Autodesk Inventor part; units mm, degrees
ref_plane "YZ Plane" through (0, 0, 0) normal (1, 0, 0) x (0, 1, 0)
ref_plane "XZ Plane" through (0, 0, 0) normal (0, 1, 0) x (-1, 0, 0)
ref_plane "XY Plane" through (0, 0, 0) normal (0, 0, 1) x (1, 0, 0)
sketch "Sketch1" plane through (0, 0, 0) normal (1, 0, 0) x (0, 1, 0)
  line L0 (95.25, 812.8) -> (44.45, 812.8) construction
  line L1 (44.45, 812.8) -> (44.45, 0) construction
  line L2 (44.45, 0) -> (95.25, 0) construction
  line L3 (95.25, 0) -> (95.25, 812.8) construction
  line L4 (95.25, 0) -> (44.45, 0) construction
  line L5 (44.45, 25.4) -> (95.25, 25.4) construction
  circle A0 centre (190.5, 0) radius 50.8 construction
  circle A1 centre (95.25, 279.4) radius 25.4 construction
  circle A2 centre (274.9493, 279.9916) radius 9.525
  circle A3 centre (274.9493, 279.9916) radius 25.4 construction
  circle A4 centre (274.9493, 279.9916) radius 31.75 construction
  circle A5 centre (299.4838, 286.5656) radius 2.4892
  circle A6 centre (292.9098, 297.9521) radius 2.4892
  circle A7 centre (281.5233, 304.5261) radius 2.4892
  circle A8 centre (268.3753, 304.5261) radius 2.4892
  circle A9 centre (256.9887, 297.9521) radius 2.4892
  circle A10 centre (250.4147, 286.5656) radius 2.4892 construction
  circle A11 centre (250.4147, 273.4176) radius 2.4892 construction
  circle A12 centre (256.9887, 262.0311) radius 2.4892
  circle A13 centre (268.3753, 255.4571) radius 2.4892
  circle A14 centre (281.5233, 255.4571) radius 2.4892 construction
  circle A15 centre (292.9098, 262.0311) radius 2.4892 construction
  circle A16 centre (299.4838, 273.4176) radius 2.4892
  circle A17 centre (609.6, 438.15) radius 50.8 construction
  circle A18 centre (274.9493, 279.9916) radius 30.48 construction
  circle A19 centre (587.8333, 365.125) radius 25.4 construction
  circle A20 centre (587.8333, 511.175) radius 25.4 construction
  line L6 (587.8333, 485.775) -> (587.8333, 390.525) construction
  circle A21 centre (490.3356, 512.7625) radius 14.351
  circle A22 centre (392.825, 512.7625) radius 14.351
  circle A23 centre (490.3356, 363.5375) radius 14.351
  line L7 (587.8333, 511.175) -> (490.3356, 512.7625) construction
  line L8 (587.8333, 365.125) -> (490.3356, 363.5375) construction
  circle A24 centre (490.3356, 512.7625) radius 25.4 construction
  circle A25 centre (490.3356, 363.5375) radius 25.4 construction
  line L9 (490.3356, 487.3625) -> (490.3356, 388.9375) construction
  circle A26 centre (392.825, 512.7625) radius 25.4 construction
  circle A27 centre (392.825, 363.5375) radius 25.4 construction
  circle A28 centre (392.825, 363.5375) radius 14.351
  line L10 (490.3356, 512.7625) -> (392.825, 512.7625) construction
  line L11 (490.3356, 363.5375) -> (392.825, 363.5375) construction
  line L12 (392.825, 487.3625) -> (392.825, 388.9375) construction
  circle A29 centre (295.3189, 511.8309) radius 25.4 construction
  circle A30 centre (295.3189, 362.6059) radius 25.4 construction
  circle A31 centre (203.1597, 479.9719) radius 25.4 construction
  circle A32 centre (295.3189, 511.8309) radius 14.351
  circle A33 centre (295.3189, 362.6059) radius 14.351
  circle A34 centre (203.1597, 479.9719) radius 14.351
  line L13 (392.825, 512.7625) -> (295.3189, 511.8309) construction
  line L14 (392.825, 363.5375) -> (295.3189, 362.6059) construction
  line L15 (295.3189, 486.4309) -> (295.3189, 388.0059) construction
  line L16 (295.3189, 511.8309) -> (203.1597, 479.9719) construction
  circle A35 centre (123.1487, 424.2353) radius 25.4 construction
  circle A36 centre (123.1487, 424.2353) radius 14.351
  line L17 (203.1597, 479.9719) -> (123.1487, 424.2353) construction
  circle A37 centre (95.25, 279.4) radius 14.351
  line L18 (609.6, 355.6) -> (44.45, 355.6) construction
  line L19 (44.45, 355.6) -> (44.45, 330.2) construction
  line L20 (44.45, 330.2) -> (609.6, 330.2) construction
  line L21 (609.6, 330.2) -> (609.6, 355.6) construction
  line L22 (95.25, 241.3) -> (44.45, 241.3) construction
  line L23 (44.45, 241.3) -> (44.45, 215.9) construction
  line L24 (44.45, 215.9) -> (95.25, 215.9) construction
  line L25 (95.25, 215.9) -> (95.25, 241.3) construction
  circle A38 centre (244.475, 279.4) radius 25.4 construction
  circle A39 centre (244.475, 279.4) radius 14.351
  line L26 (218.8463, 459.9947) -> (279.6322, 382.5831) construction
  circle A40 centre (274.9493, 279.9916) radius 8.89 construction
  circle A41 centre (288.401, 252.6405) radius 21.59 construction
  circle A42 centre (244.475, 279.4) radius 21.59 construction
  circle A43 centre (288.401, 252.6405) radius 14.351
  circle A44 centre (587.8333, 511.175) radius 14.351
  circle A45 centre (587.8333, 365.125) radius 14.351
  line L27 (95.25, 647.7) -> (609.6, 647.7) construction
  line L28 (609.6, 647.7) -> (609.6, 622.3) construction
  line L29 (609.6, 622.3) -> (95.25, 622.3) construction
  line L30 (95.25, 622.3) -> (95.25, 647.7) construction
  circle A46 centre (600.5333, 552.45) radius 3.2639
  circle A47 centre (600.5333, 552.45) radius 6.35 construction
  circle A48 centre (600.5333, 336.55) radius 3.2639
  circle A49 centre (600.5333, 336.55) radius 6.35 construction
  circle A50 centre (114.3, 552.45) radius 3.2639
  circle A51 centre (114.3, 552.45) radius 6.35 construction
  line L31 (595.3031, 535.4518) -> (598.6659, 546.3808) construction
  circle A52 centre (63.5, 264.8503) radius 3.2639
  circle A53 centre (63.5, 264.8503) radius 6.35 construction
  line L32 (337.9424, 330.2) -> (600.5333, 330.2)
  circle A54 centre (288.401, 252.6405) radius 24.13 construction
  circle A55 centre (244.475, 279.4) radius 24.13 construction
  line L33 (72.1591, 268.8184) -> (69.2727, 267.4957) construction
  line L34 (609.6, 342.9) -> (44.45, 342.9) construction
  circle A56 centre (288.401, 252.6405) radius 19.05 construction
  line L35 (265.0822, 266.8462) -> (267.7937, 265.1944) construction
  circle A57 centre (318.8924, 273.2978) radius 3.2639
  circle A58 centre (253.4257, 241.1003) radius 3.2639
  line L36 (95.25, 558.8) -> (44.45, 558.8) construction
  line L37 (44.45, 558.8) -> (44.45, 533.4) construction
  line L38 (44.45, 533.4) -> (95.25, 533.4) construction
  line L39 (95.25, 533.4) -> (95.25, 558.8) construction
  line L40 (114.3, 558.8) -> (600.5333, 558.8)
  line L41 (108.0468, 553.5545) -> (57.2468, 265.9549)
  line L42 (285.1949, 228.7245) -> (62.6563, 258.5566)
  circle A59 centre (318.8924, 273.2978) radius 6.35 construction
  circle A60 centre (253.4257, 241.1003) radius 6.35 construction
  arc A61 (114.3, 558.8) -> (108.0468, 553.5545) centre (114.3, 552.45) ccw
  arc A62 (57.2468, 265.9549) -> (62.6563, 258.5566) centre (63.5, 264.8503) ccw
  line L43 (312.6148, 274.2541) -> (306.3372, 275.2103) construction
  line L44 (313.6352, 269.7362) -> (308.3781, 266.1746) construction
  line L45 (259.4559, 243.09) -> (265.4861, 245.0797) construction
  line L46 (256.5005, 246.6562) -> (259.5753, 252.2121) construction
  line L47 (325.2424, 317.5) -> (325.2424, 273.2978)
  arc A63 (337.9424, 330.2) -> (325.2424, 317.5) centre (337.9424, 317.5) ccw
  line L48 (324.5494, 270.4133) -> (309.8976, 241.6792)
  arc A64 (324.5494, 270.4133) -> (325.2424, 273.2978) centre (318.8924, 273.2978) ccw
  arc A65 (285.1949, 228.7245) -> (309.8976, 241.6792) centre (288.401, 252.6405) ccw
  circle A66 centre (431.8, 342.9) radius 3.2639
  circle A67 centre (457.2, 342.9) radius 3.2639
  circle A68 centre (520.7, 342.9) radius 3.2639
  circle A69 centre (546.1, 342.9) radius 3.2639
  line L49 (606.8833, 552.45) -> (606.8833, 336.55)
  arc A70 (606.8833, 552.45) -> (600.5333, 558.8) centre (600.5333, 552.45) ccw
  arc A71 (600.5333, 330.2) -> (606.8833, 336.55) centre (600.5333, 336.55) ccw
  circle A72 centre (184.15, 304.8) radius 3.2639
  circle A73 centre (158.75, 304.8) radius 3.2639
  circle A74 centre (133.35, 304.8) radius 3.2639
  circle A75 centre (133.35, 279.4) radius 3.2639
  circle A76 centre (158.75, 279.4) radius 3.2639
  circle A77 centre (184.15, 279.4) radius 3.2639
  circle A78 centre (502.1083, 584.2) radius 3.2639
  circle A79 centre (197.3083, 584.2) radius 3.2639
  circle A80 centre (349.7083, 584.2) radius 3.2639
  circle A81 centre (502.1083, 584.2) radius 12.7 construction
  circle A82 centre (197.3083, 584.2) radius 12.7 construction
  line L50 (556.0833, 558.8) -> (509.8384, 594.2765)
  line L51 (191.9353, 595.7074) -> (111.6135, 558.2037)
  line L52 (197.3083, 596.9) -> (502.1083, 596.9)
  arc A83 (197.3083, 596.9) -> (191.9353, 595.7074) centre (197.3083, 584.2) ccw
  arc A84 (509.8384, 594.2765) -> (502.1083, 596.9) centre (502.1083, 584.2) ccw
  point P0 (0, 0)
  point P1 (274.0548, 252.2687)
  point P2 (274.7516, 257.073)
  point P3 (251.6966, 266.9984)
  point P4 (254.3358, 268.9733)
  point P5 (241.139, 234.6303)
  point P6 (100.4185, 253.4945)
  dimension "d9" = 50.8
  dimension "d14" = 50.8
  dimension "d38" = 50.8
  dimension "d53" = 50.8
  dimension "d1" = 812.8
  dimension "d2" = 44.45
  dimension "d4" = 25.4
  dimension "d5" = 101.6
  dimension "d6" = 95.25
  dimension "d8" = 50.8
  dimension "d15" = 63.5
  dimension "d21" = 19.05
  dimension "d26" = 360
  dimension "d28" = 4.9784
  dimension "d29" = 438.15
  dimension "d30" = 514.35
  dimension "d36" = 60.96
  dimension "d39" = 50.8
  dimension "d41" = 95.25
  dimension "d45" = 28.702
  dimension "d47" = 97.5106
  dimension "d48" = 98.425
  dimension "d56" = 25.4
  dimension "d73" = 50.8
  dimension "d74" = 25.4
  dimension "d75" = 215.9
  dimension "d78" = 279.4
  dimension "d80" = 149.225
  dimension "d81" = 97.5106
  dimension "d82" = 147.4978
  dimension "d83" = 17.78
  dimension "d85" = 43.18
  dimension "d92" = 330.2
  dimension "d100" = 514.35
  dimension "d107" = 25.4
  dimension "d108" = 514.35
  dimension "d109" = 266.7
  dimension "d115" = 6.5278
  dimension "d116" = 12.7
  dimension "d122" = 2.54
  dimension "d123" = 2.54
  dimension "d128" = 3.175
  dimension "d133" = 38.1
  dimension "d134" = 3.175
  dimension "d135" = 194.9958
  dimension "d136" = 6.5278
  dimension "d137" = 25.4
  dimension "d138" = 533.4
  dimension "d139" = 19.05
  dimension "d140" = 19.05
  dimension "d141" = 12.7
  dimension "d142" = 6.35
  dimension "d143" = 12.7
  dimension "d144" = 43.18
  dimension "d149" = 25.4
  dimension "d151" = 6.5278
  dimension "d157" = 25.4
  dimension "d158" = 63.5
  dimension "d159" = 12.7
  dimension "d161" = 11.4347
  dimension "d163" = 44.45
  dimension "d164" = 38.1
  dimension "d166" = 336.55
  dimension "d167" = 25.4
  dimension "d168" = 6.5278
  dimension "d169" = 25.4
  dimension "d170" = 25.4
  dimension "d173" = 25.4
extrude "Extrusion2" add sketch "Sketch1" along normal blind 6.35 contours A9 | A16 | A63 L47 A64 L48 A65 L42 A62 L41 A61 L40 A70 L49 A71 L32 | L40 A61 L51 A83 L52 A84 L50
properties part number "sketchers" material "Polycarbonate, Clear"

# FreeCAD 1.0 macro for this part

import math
import FreeCAD as App
import Part
import Sketcher
from FreeCAD import Vector
Q = App.Units.Quantity

doc = App.newDocument("Part")
params = doc.addObject("Spreadsheet::Sheet", "Params")
for row, (alias, value) in enumerate([
    ("sketch1_radius", "0.5 in"),
    ("sketch1_diameter", "1.13 in"),
    ("sketch1_diameter2", "0.75 in"),
    ("sketch1_radius2", "0.25 in"),
    ("sketch1_diameter3", "0.257 in"),
    ("pad1_length", "0.25 in"),
], start=1):
    params.set(f"A{row}", alias)
    params.set(f"B{row}", "=" + value)
    params.setAlias(f"B{row}", alias)

body = doc.addObject("PartDesign::Body", "Body")

sketch1 = body.newObject("Sketcher::SketchObject", "Sketch")
sketch1.AttachmentSupport = (doc.getObject("YZ_Plane"), [""])
sketch1.MapMode = "FlatFace"
sketch1.addGeometry([
    Part.ArcOfCircle(Part.Circle(Vector(337.9, 317.5, 0), Vector(0, 0, 1), 12.7), math.radians(90), math.radians(180)),
    Part.LineSegment(Vector(337.9, 330.2, 0), Vector(600.5, 330.2, 0)),
    Part.ArcOfCircle(Part.Circle(Vector(600.5, 336.6, 0), Vector(0, 0, 1), 6.3), math.radians(-90), math.radians(0)),
    Part.LineSegment(Vector(606.9, 336.6, 0), Vector(606.9, 552.5, 0)),
    Part.ArcOfCircle(Part.Circle(Vector(600.5, 552.5, 0), Vector(0, 0, 1), 6.3), math.radians(0), math.radians(90)),
    Part.LineSegment(Vector(600.5, 558.8, 0), Vector(556.1, 558.8, 0)),
    Part.LineSegment(Vector(556.1, 558.8, 0), Vector(509.8, 594.3, 0)),
    Part.ArcOfCircle(Part.Circle(Vector(502.1, 584.2, 0), Vector(0, 0, 1), 12.7), math.radians(53), math.radians(90)),
    Part.LineSegment(Vector(502.1, 596.9, 0), Vector(197.3, 596.9, 0)),
    Part.ArcOfCircle(Part.Circle(Vector(197.3, 584.2, 0), Vector(0, 0, 1), 12.7), math.radians(90), math.radians(115)),
    Part.LineSegment(Vector(191.9, 595.7, 0), Vector(111.6, 558.2, 0)),
    Part.ArcOfCircle(Part.Circle(Vector(114.3, 552.5, 0), Vector(0, 0, 1), 6.3), math.radians(115), math.radians(170)),
    Part.LineSegment(Vector(108, 553.6, 0), Vector(57.2, 266, 0)),
    Part.ArcOfCircle(Part.Circle(Vector(63.5, 264.9, 0), Vector(0, 0, 1), 6.3), math.radians(170), math.radians(262)),
    Part.LineSegment(Vector(62.7, 258.6, 0), Vector(285.2, 228.7, 0)),
    Part.ArcOfCircle(Part.Circle(Vector(288.4, 252.6, 0), Vector(0, 0, 1), 24.1), math.radians(-98), math.radians(-27)),
    Part.LineSegment(Vector(309.9, 241.7, 0), Vector(324.5, 270.4, 0)),
    Part.ArcOfCircle(Part.Circle(Vector(318.9, 273.3, 0), Vector(0, 0, 1), 6.3), math.radians(-27), math.radians(0)),
    Part.LineSegment(Vector(325.2, 273.3, 0), Vector(325.2, 317.5, 0)),
    Part.Circle(Vector(63.5, 264.9, 0), Vector(0, 0, 1), 3.3),
    Part.Circle(Vector(95.2, 279.4, 0), Vector(0, 0, 1), 14.4),
    Part.Circle(Vector(133.3, 279.4, 0), Vector(0, 0, 1), 3.3),
    Part.Circle(Vector(158.8, 279.4, 0), Vector(0, 0, 1), 3.3),
    Part.Circle(Vector(184.2, 279.4, 0), Vector(0, 0, 1), 3.3),
    Part.Circle(Vector(133.3, 304.8, 0), Vector(0, 0, 1), 3.3),
    Part.Circle(Vector(158.8, 304.8, 0), Vector(0, 0, 1), 3.3),
    Part.Circle(Vector(184.2, 304.8, 0), Vector(0, 0, 1), 3.3),
    Part.Circle(Vector(253.4, 241.1, 0), Vector(0, 0, 1), 3.3),
    Part.Circle(Vector(257, 262, 0), Vector(0, 0, 1), 2.5),
    Part.Circle(Vector(268.4, 255.5, 0), Vector(0, 0, 1), 2.5),
    Part.Circle(Vector(288.4, 252.6, 0), Vector(0, 0, 1), 14.4),
    Part.Circle(Vector(318.9, 273.3, 0), Vector(0, 0, 1), 3.3),
    Part.Circle(Vector(244.5, 279.4, 0), Vector(0, 0, 1), 14.4),
    Part.Circle(Vector(600.5, 552.5, 0), Vector(0, 0, 1), 3.3),
    Part.Circle(Vector(274.9, 280, 0), Vector(0, 0, 1), 9.5),
    Part.Circle(Vector(299.5, 286.6, 0), Vector(0, 0, 1), 2.5),
    Part.Circle(Vector(268.4, 304.5, 0), Vector(0, 0, 1), 2.5),
    Part.Circle(Vector(292.9, 298, 0), Vector(0, 0, 1), 2.5),
    Part.Circle(Vector(281.5, 304.5, 0), Vector(0, 0, 1), 2.5),
    Part.Circle(Vector(295.3, 362.6, 0), Vector(0, 0, 1), 14.4),
    Part.Circle(Vector(392.8, 363.5, 0), Vector(0, 0, 1), 14.4),
    Part.Circle(Vector(431.8, 342.9, 0), Vector(0, 0, 1), 3.3),
    Part.Circle(Vector(457.2, 342.9, 0), Vector(0, 0, 1), 3.3),
    Part.Circle(Vector(520.7, 342.9, 0), Vector(0, 0, 1), 3.3),
    Part.Circle(Vector(490.3, 363.5, 0), Vector(0, 0, 1), 14.4),
    Part.Circle(Vector(546.1, 342.9, 0), Vector(0, 0, 1), 3.3),
    Part.Circle(Vector(600.5, 336.6, 0), Vector(0, 0, 1), 3.3),
    Part.Circle(Vector(587.8, 365.1, 0), Vector(0, 0, 1), 14.4),
    Part.Circle(Vector(123.1, 424.2, 0), Vector(0, 0, 1), 14.4),
    Part.Circle(Vector(203.2, 480, 0), Vector(0, 0, 1), 14.4),
    Part.Circle(Vector(114.3, 552.5, 0), Vector(0, 0, 1), 3.3),
    Part.Circle(Vector(295.3, 511.8, 0), Vector(0, 0, 1), 14.4),
    Part.Circle(Vector(392.8, 512.8, 0), Vector(0, 0, 1), 14.4),
    Part.Circle(Vector(490.3, 512.8, 0), Vector(0, 0, 1), 14.4),
    Part.Circle(Vector(587.8, 511.2, 0), Vector(0, 0, 1), 14.4),
    Part.Circle(Vector(349.7, 584.2, 0), Vector(0, 0, 1), 3.3),
    Part.Circle(Vector(502.1, 584.2, 0), Vector(0, 0, 1), 3.3),
    Part.Circle(Vector(197.3, 584.2, 0), Vector(0, 0, 1), 3.3),
], False)
sketch1.addConstraint([
    Sketcher.Constraint("Tangent", 0, 1, 1, 1),
    Sketcher.Constraint("Tangent", 1, 2, 2, 1),
    Sketcher.Constraint("Tangent", 2, 2, 3, 1),
    Sketcher.Constraint("Tangent", 3, 2, 4, 1),
    Sketcher.Constraint("Tangent", 4, 2, 5, 1),
    Sketcher.Constraint("Coincident", 5, 2, 6, 1),
    Sketcher.Constraint("Tangent", 6, 2, 7, 1),
    Sketcher.Constraint("Tangent", 7, 2, 8, 1),
    Sketcher.Constraint("Tangent", 8, 2, 9, 1),
    Sketcher.Constraint("Tangent", 9, 2, 10, 1),
    Sketcher.Constraint("Tangent", 10, 2, 11, 1),
    Sketcher.Constraint("Tangent", 11, 2, 12, 1),
    Sketcher.Constraint("Tangent", 12, 2, 13, 1),
    Sketcher.Constraint("Tangent", 13, 2, 14, 1),
    Sketcher.Constraint("Tangent", 14, 2, 15, 1),
    Sketcher.Constraint("Tangent", 15, 2, 16, 1),
    Sketcher.Constraint("Tangent", 16, 2, 17, 1),
    Sketcher.Constraint("Tangent", 17, 2, 18, 1),
    Sketcher.Constraint("Tangent", 18, 2, 0, 2),
    Sketcher.Constraint("Horizontal", 1),
    Sketcher.Constraint("Vertical", 3),
    Sketcher.Constraint("Horizontal", 5),
    Sketcher.Constraint("Horizontal", 8),
    Sketcher.Constraint("Vertical", 18),
    Sketcher.Constraint("Coincident", 19, 3, 13, 3),
    Sketcher.Constraint("Coincident", 30, 3, 15, 3),
    Sketcher.Constraint("Coincident", 31, 3, 17, 3),
    Sketcher.Constraint("Coincident", 33, 3, 4, 3),
    Sketcher.Constraint("Coincident", 46, 3, 2, 3),
    Sketcher.Constraint("Coincident", 50, 3, 11, 3),
    Sketcher.Constraint("Coincident", 56, 3, 7, 3),
    Sketcher.Constraint("Coincident", 57, 3, 9, 3),
    Sketcher.Constraint("Equal", 2, 4),
    Sketcher.Constraint("Equal", 0, 7),
    Sketcher.Constraint("Equal", 7, 9),
    Sketcher.Constraint("Equal", 4, 11),
    Sketcher.Constraint("Equal", 11, 13),
    Sketcher.Constraint("Equal", 13, 17),
    Sketcher.Constraint("Equal", 19, 21),
    Sketcher.Constraint("Equal", 21, 22),
    Sketcher.Constraint("Equal", 22, 23),
    Sketcher.Constraint("Equal", 23, 24),
    Sketcher.Constraint("Equal", 24, 25),
    Sketcher.Constraint("Equal", 25, 26),
    Sketcher.Constraint("Equal", 26, 27),
    Sketcher.Constraint("Equal", 28, 29),
    Sketcher.Constraint("Equal", 20, 30),
    Sketcher.Constraint("Equal", 27, 31),
    Sketcher.Constraint("Equal", 30, 32),
    Sketcher.Constraint("Equal", 31, 33),
    Sketcher.Constraint("Equal", 29, 35),
    Sketcher.Constraint("Equal", 35, 36),
    Sketcher.Constraint("Equal", 36, 37),
    Sketcher.Constraint("Equal", 37, 38),
    Sketcher.Constraint("Equal", 32, 39),
    Sketcher.Constraint("Equal", 39, 40),
    Sketcher.Constraint("Equal", 33, 41),
    Sketcher.Constraint("Equal", 41, 42),
    Sketcher.Constraint("Equal", 42, 43),
    Sketcher.Constraint("Equal", 40, 44),
    Sketcher.Constraint("Equal", 43, 45),
    Sketcher.Constraint("Equal", 45, 46),
    Sketcher.Constraint("Equal", 44, 47),
    Sketcher.Constraint("Equal", 47, 48),
    Sketcher.Constraint("Equal", 48, 49),
    Sketcher.Constraint("Equal", 46, 50),
    Sketcher.Constraint("Equal", 49, 51),
    Sketcher.Constraint("Equal", 51, 52),
    Sketcher.Constraint("Equal", 52, 53),
    Sketcher.Constraint("Equal", 53, 54),
    Sketcher.Constraint("Equal", 50, 55),
    Sketcher.Constraint("Equal", 55, 56),
    Sketcher.Constraint("Equal", 56, 57),
    Sketcher.Constraint("Horizontal", 4, 3, 11, 3),
    Sketcher.Constraint("Horizontal", 20, 3, 21, 3),
    Sketcher.Constraint("Horizontal", 21, 3, 22, 3),
    Sketcher.Constraint("Horizontal", 22, 3, 23, 3),
    Sketcher.Constraint("Horizontal", 24, 3, 25, 3),
    Sketcher.Constraint("Horizontal", 25, 3, 26, 3),
    Sketcher.Constraint("Horizontal", 23, 3, 32, 3),
    Sketcher.Constraint("Horizontal", 36, 3, 38, 3),
    Sketcher.Constraint("Horizontal", 41, 3, 42, 3),
    Sketcher.Constraint("Horizontal", 42, 3, 43, 3),
    Sketcher.Constraint("Horizontal", 40, 3, 44, 3),
    Sketcher.Constraint("Horizontal", 43, 3, 45, 3),
    Sketcher.Constraint("Horizontal", 52, 3, 53, 3),
    Sketcher.Constraint("Horizontal", 9, 3, 55, 3),
    Sketcher.Constraint("Vertical", 21, 3, 24, 3),
    Sketcher.Constraint("Vertical", 22, 3, 25, 3),
    Sketcher.Constraint("Vertical", 23, 3, 26, 3),
    Sketcher.Constraint("Vertical", 29, 3, 36, 3),
    Sketcher.Constraint("Vertical", 39, 3, 51, 3),
    Sketcher.Constraint("Vertical", 40, 3, 52, 3),
    Sketcher.Constraint("Vertical", 44, 3, 53, 3),
    Sketcher.Constraint("Vertical", 47, 3, 54, 3),
    Sketcher.Constraint("Radius", 0, Q("0.5 in")),
    Sketcher.Constraint("Diameter", 20, Q("1.13 in")),
    Sketcher.Constraint("Diameter", 34, Q("0.75 in")),
    Sketcher.Constraint("Radius", 2, Q("0.25 in")),
    Sketcher.Constraint("Diameter", 19, Q("0.257 in")),
    Sketcher.Constraint("Diameter", 28, Q("0.196 in")),
    Sketcher.Constraint("DistanceY", 3, 1, 3, 2, Q("8.5 in")),
    Sketcher.Constraint("DistanceY", -1, 1, 20, 3, Q("11 in")),
    Sketcher.Constraint("DistanceY", -1, 1, 0, 1, Q("13 in")),
    Sketcher.Constraint("DistanceX", 5, 2, 5, 1, Q("1.75 in")),
    Sketcher.Constraint("DistanceX", -1, 1, 13, 3, Q("2.5 in")),
    Sketcher.Constraint("DistanceX", 8, 2, 8, 1, Q("12 in")),
    Sketcher.Constraint("DistanceX", -1, 1, 20, 3, Q("3.75 in")),
    Sketcher.Constraint("Radius", 15, Q("0.95 in")),
    Sketcher.Constraint("DistanceY", -1, 1, 7, 3, Q("23 in")),
    Sketcher.Constraint("DistanceY", -1, 1, 24, 3, Q("12 in")),
    Sketcher.Constraint("DistanceX", -1, 1, 41, 3, Q("17 in")),
    Sketcher.Constraint("DistanceX", -1, 1, 42, 3, Q("18 in")),
    Sketcher.Constraint("DistanceX", -1, 1, 11, 3, Q("4.5 in")),
    Sketcher.Constraint("DistanceY", -1, 1, 41, 3, Q("13.5 in")),
    Sketcher.Constraint("DistanceX", -1, 1, 43, 3, Q("20.5 in")),
    Sketcher.Constraint("DistanceX", -1, 1, 45, 3, Q("21.5 in")),
    Sketcher.Constraint("Distance", 10, Q("3.49 in")),
    Sketcher.Constraint("DistanceX", -1, 1, 21, 3, Q("5.25 in")),
    Sketcher.Constraint("DistanceX", -1, 1, 22, 3, Q("6.25 in")),
    Sketcher.Constraint("DistanceX", -1, 1, 23, 3, Q("7.25 in")),
    Sketcher.Constraint("DistanceX", -1, 1, 32, 3, Q("9.625 in")),
    Sketcher.Constraint("DistanceY", -1, 1, 40, 3, Q("14.3125 in")),
    Sketcher.Constraint("DistanceY", -1, 1, 47, 3, Q("14.375 in")),
    Sketcher.Constraint("DistanceY", -1, 1, 52, 3, Q("20.1875 in")),
    Sketcher.Constraint("DistanceY", -1, 1, 54, 3, Q("20.125 in")),
    Sketcher.Constraint("Distance", 6, Q("2.2947 in")),
    Sketcher.Constraint("Distance", 12, Q("11.4981 in")),
    Sketcher.Constraint("DistanceX", 1, 1, 1, 2, Q("262.591 mm")),
    Sketcher.Constraint("DistanceY", 18, 1, 18, 2, Q("44.2022 mm")),
    Sketcher.Constraint("DistanceX", -1, 1, 27, 3, Q("9.9774 in")),
    Sketcher.Constraint("DistanceY", -1, 1, 34, 3, Q("11.0233 in")),
    Sketcher.Constraint("DistanceX", -1, 1, 35, 3, Q("11.7907 in")),
    Sketcher.Constraint("DistanceY", -1, 1, 35, 3, Q("11.2821 in")),
    Sketcher.Constraint("DistanceY", -1, 1, 37, 3, Q("11.7304 in")),
    Sketcher.Constraint("DistanceX", -1, 1, 38, 3, Q("11.0836 in")),
    Sketcher.Constraint("DistanceY", -1, 1, 14, 2, Q("9.0049 in")),
    Sketcher.Constraint("DistanceX", -1, 1, 15, 2, Q("12.2007 in")),
    Sketcher.Constraint("DistanceY", -1, 1, 27, 3, Q("241.1003 mm")),
    Sketcher.Constraint("DistanceX", -1, 1, 28, 3, Q("256.9887 mm")),
    Sketcher.Constraint("DistanceY", -1, 1, 28, 3, Q("262.031 mm")),
    Sketcher.Constraint("DistanceX", -1, 1, 29, 3, Q("268.3753 mm")),
    Sketcher.Constraint("DistanceY", -1, 1, 29, 3, Q("255.457 mm")),
    Sketcher.Constraint("DistanceX", -1, 1, 34, 3, Q("274.9493 mm")),
    Sketcher.Constraint("DistanceY", -1, 1, 36, 3, Q("304.526 mm")),
    Sketcher.Constraint("DistanceX", -1, 1, 37, 3, Q("292.9098 mm")),
    Sketcher.Constraint("DistanceX", -1, 1, 39, 3, Q("295.319 mm")),
    Sketcher.Constraint("DistanceY", -1, 1, 39, 3, Q("362.606 mm")),
    Sketcher.Constraint("DistanceX", -1, 1, 40, 3, Q("392.825 mm")),
    Sketcher.Constraint("DistanceX", -1, 1, 44, 3, Q("490.3356 mm")),
    Sketcher.Constraint("DistanceX", -1, 1, 47, 3, Q("587.8333 mm")),
    Sketcher.Constraint("DistanceX", -1, 1, 48, 3, Q("123.1487 mm")),
    Sketcher.Constraint("DistanceY", -1, 1, 48, 3, Q("424.2353 mm")),
    Sketcher.Constraint("DistanceX", -1, 1, 49, 3, Q("203.1597 mm")),
    Sketcher.Constraint("DistanceY", -1, 1, 49, 3, Q("479.972 mm")),
    Sketcher.Constraint("DistanceY", -1, 1, 51, 3, Q("511.831 mm")),
    Sketcher.Constraint("DistanceX", -1, 1, 55, 3, Q("349.7083 mm")),
])
sketch1.setExpression("Constraints[95]", "Params.sketch1_radius")
sketch1.setExpression("Constraints[96]", "Params.sketch1_diameter")
sketch1.setExpression("Constraints[97]", "Params.sketch1_diameter2")
sketch1.setExpression("Constraints[98]", "Params.sketch1_radius2")
sketch1.setExpression("Constraints[99]", "Params.sketch1_diameter3")
pad1 = body.newObject("PartDesign::Pad", "Pad")
pad1.Profile = sketch1
pad1.setExpression("Length", "Params.pad1_length")

doc.recompute()
